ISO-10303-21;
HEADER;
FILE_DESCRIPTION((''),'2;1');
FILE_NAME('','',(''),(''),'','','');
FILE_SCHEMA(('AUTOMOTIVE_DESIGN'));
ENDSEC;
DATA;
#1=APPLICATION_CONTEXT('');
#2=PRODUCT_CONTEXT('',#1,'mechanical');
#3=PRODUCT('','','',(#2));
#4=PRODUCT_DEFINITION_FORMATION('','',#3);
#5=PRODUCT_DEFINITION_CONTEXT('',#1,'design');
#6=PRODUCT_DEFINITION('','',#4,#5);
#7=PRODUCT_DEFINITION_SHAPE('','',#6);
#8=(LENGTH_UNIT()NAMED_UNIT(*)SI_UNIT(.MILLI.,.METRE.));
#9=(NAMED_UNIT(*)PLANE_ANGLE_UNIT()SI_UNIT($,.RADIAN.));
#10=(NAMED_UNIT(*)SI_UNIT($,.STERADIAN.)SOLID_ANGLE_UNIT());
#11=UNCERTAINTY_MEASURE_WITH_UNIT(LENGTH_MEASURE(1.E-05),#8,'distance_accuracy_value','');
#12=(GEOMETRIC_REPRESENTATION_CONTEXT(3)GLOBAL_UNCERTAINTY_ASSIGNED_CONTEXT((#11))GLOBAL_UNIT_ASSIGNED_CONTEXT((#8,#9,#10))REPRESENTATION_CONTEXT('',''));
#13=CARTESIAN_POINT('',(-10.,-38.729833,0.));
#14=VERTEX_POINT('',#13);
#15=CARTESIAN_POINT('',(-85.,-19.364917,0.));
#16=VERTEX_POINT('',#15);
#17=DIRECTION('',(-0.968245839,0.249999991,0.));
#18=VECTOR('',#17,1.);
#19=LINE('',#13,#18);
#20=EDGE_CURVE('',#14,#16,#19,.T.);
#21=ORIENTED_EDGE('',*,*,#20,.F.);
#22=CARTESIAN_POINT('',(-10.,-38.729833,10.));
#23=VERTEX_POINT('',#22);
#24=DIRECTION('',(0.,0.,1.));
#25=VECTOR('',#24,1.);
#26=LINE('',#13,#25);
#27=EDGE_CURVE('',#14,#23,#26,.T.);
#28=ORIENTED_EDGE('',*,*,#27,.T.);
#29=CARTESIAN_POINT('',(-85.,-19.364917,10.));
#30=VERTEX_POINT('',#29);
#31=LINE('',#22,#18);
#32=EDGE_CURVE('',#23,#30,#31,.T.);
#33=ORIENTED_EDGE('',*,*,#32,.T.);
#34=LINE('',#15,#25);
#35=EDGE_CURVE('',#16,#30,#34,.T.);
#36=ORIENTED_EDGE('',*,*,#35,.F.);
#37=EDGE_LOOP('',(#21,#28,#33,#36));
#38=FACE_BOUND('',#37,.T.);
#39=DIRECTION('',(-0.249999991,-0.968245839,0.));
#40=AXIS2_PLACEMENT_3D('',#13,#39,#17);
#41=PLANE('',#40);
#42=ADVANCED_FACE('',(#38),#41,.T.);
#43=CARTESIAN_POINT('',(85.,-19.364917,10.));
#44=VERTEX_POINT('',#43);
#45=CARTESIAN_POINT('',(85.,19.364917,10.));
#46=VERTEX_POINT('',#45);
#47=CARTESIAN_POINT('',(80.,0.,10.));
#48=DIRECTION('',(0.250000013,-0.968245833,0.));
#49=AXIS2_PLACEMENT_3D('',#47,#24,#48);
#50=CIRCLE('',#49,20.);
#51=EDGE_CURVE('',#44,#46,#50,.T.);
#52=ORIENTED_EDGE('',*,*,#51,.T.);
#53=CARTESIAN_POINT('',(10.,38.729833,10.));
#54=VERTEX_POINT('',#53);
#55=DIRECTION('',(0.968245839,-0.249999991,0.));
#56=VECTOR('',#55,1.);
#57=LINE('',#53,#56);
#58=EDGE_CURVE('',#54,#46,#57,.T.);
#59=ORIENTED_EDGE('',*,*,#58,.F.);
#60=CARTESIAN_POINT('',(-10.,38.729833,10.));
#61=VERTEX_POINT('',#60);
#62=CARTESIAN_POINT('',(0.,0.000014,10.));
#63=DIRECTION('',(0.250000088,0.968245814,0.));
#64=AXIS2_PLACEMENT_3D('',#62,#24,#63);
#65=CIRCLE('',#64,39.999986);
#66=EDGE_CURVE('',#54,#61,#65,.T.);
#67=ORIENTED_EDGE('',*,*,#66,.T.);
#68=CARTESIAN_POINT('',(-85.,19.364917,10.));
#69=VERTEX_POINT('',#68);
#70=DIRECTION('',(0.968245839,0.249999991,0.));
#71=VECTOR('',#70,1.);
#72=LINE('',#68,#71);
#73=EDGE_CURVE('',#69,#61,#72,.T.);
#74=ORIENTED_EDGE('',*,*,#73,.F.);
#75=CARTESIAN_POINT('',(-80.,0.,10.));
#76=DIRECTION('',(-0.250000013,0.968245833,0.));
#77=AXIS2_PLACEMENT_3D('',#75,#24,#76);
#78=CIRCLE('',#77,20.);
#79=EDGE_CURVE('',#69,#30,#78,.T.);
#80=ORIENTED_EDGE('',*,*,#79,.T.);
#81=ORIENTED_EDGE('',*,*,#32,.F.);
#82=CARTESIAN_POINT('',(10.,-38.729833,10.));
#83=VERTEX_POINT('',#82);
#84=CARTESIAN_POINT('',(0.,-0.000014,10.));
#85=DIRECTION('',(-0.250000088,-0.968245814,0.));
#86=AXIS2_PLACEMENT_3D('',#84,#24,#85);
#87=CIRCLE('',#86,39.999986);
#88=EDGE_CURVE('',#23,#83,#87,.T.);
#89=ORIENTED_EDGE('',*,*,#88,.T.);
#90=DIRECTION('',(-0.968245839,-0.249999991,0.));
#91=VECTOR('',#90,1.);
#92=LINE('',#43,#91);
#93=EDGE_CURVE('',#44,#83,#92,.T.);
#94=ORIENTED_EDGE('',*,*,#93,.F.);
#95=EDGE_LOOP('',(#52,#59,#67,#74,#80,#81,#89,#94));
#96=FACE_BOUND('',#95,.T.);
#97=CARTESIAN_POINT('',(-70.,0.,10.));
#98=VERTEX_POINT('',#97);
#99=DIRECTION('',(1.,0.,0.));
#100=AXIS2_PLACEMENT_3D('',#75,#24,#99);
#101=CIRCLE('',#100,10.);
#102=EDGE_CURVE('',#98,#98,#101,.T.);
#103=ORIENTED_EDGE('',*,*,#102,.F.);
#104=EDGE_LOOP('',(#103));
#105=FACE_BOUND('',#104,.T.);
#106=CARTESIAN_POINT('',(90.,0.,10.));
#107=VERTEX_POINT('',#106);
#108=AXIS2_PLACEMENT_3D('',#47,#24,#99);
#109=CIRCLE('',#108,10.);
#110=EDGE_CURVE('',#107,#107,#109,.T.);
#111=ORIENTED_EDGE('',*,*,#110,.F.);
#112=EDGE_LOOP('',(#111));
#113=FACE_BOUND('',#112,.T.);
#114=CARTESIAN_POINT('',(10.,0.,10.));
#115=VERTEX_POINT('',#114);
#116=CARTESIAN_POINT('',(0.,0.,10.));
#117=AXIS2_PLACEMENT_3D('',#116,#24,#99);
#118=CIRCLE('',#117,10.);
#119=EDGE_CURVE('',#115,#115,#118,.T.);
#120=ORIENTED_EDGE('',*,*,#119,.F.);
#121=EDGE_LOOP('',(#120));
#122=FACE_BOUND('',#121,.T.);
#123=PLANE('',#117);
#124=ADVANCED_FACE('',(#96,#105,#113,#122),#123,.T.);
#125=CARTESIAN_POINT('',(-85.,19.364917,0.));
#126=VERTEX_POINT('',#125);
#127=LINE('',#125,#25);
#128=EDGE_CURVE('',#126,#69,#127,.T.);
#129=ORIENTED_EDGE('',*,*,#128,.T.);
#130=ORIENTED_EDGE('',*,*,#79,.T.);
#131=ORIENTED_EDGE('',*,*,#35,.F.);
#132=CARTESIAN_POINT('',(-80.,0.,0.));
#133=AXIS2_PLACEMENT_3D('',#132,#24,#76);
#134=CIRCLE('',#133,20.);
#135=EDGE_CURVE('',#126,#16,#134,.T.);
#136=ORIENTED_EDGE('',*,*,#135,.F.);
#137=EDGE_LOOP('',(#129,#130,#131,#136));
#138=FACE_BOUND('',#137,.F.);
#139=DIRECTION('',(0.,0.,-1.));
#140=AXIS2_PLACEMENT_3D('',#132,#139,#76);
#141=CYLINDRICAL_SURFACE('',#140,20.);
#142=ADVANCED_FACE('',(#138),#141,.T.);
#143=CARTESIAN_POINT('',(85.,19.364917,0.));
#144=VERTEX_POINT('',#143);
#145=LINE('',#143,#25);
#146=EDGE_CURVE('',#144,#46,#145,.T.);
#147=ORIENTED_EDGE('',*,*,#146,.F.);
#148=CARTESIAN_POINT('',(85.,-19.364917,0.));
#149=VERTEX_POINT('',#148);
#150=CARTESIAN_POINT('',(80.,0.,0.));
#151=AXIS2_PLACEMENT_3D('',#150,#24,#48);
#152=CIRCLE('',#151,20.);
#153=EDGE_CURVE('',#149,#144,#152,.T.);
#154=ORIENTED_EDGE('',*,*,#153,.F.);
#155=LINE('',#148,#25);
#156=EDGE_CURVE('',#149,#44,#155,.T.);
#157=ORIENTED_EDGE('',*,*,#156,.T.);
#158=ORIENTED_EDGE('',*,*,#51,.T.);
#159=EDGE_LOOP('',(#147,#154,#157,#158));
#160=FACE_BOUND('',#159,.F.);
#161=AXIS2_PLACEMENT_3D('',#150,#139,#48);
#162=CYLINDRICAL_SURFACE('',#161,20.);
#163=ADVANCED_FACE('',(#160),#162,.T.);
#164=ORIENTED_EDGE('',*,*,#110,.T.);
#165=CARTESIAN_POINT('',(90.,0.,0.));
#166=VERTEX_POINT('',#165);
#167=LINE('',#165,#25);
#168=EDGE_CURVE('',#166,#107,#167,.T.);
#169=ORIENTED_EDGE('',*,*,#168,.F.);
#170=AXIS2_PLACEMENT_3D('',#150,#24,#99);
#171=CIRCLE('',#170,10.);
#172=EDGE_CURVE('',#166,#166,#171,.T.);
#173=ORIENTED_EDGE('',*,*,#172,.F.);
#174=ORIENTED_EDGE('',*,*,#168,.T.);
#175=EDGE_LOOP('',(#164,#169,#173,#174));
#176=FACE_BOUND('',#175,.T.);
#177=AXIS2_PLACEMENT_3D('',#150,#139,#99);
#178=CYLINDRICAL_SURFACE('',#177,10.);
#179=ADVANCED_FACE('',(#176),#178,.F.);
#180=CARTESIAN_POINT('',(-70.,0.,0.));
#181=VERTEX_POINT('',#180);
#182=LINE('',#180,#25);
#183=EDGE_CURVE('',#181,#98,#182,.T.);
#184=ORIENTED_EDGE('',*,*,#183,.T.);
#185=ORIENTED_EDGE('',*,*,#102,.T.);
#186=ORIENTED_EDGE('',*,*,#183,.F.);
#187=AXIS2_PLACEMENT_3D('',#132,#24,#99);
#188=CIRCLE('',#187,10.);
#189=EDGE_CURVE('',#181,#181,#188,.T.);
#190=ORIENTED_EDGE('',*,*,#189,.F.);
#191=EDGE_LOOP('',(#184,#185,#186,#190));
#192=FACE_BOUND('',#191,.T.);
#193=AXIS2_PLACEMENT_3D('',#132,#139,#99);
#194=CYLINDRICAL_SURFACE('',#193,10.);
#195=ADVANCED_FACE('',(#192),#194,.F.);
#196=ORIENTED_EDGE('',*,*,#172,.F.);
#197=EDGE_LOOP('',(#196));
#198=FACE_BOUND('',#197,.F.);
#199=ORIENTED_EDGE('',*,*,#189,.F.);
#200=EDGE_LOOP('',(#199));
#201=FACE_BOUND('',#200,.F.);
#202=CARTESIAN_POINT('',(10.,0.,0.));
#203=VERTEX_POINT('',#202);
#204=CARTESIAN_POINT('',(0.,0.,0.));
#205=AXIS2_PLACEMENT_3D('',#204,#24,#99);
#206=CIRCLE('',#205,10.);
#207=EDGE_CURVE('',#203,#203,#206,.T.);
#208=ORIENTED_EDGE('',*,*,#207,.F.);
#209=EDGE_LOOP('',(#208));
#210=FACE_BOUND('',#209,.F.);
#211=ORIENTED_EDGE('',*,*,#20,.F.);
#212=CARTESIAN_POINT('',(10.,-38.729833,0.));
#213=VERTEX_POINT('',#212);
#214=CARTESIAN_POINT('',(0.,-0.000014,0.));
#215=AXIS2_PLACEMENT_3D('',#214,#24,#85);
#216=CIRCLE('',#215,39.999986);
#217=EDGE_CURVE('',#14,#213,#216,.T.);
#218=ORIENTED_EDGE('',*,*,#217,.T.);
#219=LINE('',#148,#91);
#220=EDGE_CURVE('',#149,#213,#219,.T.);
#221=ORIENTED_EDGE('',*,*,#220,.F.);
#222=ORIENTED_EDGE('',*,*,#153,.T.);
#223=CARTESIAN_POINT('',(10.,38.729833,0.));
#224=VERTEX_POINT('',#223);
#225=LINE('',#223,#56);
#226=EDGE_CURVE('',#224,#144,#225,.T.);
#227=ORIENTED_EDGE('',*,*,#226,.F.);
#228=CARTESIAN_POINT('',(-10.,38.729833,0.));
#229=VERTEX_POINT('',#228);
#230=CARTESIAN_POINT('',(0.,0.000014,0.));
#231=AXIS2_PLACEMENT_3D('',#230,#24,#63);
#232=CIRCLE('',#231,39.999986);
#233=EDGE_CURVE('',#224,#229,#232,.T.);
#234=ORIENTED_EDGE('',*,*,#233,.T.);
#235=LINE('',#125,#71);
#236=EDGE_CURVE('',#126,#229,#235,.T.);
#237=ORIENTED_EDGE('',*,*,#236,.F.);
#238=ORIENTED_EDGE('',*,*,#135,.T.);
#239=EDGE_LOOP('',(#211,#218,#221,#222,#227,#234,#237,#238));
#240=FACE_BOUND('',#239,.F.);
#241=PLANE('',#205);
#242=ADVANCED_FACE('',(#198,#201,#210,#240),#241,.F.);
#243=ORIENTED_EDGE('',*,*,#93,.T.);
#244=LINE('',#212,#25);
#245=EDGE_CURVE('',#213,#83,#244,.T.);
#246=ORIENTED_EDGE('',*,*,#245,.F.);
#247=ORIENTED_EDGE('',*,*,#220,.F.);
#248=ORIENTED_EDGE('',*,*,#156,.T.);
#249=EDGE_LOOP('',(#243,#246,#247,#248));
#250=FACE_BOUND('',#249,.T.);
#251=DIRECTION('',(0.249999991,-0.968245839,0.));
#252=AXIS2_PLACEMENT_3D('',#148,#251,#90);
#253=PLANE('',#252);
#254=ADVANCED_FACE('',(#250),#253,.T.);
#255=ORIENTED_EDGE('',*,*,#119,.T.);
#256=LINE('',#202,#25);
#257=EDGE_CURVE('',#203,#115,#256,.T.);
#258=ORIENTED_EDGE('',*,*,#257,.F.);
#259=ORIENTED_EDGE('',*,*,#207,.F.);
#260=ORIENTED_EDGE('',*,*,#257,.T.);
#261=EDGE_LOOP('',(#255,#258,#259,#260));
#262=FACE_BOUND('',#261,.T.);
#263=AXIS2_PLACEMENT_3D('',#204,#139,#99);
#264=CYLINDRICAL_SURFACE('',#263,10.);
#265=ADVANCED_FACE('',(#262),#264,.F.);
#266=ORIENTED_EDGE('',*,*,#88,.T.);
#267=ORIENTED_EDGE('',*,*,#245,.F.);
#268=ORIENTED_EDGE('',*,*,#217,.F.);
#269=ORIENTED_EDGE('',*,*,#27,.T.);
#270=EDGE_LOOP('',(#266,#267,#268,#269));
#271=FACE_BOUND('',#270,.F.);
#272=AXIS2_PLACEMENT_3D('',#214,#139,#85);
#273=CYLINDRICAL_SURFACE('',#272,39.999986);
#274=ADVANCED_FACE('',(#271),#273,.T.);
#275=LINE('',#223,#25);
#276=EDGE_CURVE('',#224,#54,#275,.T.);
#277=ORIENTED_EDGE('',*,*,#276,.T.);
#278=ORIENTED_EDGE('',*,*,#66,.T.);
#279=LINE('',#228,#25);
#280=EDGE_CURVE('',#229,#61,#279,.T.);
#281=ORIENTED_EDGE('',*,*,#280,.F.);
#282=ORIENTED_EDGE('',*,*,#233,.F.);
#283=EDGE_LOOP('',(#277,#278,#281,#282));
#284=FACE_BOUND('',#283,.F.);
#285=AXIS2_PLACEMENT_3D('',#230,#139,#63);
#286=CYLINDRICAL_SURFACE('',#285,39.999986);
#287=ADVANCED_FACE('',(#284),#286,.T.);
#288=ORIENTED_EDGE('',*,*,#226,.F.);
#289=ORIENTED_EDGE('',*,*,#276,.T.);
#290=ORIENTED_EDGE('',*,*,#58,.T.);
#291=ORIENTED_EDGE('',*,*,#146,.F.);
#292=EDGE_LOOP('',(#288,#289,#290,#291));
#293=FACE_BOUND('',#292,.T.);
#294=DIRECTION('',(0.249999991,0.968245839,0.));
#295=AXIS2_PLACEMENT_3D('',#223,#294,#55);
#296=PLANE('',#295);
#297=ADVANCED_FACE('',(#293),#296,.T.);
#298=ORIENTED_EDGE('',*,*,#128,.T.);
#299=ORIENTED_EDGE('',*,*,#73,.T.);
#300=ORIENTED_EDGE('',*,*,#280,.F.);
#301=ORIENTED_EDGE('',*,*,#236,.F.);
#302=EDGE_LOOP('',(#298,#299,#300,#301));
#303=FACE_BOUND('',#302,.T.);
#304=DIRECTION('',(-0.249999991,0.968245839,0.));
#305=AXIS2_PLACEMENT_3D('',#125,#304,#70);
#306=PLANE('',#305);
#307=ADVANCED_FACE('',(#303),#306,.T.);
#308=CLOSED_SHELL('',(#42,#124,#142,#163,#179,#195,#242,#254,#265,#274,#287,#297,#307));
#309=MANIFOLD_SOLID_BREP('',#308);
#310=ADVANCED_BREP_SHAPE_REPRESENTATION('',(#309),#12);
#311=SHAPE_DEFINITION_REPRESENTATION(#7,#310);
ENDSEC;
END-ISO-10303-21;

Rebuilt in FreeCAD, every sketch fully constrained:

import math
import FreeCAD as App
import Part
import Sketcher

V = App.Vector
Q = App.Units.Quantity

doc = App.newDocument("Part")
body = doc.addObject("PartDesign::Body", "Body")

# Sketch on XY plane
sketch1 = doc.addObject("Sketcher::SketchObject", "Sketch")
body.addObject(sketch1)
sketch1.AttachmentSupport = (doc.XY_Plane, [""])
sketch1.MapMode = "FlatFace"
sketch1.addGeometry([
    Part.ArcOfCircle(Part.Circle(V(0, -0.000014, 0), V(0, 0, 1), 39.999986), math.radians(-104.477517), math.radians(-75.522483)),  # 0
    Part.LineSegment(V(10, -38.729833, 0), V(85, -19.364917, 0)),  # 1
    Part.ArcOfCircle(Part.Circle(V(80, 0, 0), V(0, 0, 1), 20), math.radians(-75.522487), math.radians(75.522487)),  # 2
    Part.LineSegment(V(85, 19.364917, 0), V(10, 38.729833, 0)),  # 3
    Part.ArcOfCircle(Part.Circle(V(0, 0.000014, 0), V(0, 0, 1), 39.999986), math.radians(75.522483), math.radians(104.477517)),  # 4
    Part.LineSegment(V(-10, 38.729833, 0), V(-85, 19.364917, 0)),  # 5
    Part.ArcOfCircle(Part.Circle(V(-80, 0, 0), V(0, 0, 1), 20), math.radians(104.477513), math.radians(255.522487)),  # 6
    Part.LineSegment(V(-85, -19.364917, 0), V(-10, -38.729833, 0)),  # 7
    Part.Circle(V(-80, 0, 0), V(0, 0, 1), 10),  # 8
    Part.Circle(V(0, 0, 0), V(0, 0, 1), 10),  # 9
    Part.Circle(V(80, 0, 0), V(0, 0, 1), 10),  # 10
], False)
sketch1.addConstraint([
    Sketcher.Constraint("Tangent", 0, 2, 1, 1),
    Sketcher.Constraint("Tangent", 1, 2, 2, 1),
    Sketcher.Constraint("Tangent", 2, 2, 3, 1),
    Sketcher.Constraint("Tangent", 3, 2, 4, 1),
    Sketcher.Constraint("Tangent", 4, 2, 5, 1),
    Sketcher.Constraint("Tangent", 5, 2, 6, 1),
    Sketcher.Constraint("Tangent", 6, 2, 7, 1),
    Sketcher.Constraint("Tangent", 7, 2, 0, 1),
    Sketcher.Constraint("Coincident", 9, 3, -1, 1),
    Sketcher.Constraint("Coincident", 8, 3, 6, 3),
    Sketcher.Constraint("Coincident", 10, 3, 2, 3),
    Sketcher.Constraint("Equal", 0, 4),
    Sketcher.Constraint("Equal", 2, 6),
    Sketcher.Constraint("Equal", 8, 9),
    Sketcher.Constraint("Equal", 9, 10),
    Sketcher.Constraint("Symmetric", 0, 3, 4, 3, -1, 1),
    Sketcher.Constraint("Symmetric", 2, 3, 6, 3, -1, 1),
    Sketcher.Constraint("Symmetric", 3, 2, 4, 2, -2),
    Sketcher.Constraint("Diameter", 8, Q("20 mm")),
    Sketcher.Constraint("Radius", 2, Q("20 mm")),
    Sketcher.Constraint("DistanceX", -1, 1, 2, 3, Q("80 mm")),
    Sketcher.Constraint("DistanceX", -1, 1, 0, 2, Q("10 mm")),
    Sketcher.Constraint("DistanceX", -1, 1, 1, 2, Q("85 mm")),
])
pad1 = doc.addObject("PartDesign::Pad", "Pad")
body.addObject(pad1)
pad1.Profile = sketch1
pad1.Length = 10

doc.recompute()
